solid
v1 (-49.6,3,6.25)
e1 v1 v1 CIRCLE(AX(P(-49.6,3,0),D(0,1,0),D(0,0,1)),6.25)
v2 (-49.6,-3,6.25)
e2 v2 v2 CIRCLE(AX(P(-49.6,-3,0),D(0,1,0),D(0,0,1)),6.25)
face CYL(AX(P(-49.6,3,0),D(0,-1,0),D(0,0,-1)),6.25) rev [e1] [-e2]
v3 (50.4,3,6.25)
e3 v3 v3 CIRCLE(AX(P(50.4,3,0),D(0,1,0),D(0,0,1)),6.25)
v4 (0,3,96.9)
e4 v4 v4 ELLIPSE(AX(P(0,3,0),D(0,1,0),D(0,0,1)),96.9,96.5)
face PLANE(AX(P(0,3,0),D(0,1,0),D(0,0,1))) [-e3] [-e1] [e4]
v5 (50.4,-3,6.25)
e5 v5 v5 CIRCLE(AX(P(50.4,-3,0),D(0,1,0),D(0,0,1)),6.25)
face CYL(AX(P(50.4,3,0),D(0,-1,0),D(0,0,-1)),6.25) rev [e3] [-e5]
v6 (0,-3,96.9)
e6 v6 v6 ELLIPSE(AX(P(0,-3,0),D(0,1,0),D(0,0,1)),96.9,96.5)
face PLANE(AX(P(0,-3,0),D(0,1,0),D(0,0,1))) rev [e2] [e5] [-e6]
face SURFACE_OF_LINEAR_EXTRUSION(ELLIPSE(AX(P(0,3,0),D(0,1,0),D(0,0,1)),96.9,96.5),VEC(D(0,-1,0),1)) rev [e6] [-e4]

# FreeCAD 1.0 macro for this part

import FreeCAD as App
import Part
import Sketcher

doc = App.newDocument("Part")
body = doc.addObject("PartDesign::Body", "Body")

# Sketch on XZ plane
sketch1 = body.newObject("Sketcher::SketchObject", "Sketch")
sketch1.AttachmentSupport = (doc.getObject("XZ_Plane"), [""])
sketch1.MapMode = "FlatFace"
sketch1.addGeometry(Part.Ellipse(App.Vector(0, 96.9, 0), App.Vector(-96.5, 0, 0), App.Vector(0, 0, 0)), False)
sketch1.addGeometry(Part.Circle(App.Vector(-49.6, 0, 0), App.Vector(0, 0, 1), 6.25), False)
sketch1.addGeometry(Part.Circle(App.Vector(50.4, 0, 0), App.Vector(0, 0, 1), 6.25), False)
sketch1.addConstraint(Sketcher.Constraint("Block", 0))
sketch1.addConstraint(Sketcher.Constraint("Equal", 1, 2))
sketch1.addConstraint(Sketcher.Constraint("PointOnObject", 1, 3, -1))
sketch1.addConstraint(Sketcher.Constraint("PointOnObject", 2, 3, -1))
sketch1.addConstraint(Sketcher.Constraint("Diameter", 1, 12.5))
sketch1.addConstraint(Sketcher.Constraint("DistanceX", 1, 3, 2, 3, 100.0))
sketch1.addConstraint(Sketcher.Constraint("DistanceX", 1, 3, -1, 1, 49.6))
pad1 = body.newObject("PartDesign::Pad", "Pad")
pad1.Profile = sketch1
pad1.Length = 6
pad1.Midplane = True

doc.recompute()
